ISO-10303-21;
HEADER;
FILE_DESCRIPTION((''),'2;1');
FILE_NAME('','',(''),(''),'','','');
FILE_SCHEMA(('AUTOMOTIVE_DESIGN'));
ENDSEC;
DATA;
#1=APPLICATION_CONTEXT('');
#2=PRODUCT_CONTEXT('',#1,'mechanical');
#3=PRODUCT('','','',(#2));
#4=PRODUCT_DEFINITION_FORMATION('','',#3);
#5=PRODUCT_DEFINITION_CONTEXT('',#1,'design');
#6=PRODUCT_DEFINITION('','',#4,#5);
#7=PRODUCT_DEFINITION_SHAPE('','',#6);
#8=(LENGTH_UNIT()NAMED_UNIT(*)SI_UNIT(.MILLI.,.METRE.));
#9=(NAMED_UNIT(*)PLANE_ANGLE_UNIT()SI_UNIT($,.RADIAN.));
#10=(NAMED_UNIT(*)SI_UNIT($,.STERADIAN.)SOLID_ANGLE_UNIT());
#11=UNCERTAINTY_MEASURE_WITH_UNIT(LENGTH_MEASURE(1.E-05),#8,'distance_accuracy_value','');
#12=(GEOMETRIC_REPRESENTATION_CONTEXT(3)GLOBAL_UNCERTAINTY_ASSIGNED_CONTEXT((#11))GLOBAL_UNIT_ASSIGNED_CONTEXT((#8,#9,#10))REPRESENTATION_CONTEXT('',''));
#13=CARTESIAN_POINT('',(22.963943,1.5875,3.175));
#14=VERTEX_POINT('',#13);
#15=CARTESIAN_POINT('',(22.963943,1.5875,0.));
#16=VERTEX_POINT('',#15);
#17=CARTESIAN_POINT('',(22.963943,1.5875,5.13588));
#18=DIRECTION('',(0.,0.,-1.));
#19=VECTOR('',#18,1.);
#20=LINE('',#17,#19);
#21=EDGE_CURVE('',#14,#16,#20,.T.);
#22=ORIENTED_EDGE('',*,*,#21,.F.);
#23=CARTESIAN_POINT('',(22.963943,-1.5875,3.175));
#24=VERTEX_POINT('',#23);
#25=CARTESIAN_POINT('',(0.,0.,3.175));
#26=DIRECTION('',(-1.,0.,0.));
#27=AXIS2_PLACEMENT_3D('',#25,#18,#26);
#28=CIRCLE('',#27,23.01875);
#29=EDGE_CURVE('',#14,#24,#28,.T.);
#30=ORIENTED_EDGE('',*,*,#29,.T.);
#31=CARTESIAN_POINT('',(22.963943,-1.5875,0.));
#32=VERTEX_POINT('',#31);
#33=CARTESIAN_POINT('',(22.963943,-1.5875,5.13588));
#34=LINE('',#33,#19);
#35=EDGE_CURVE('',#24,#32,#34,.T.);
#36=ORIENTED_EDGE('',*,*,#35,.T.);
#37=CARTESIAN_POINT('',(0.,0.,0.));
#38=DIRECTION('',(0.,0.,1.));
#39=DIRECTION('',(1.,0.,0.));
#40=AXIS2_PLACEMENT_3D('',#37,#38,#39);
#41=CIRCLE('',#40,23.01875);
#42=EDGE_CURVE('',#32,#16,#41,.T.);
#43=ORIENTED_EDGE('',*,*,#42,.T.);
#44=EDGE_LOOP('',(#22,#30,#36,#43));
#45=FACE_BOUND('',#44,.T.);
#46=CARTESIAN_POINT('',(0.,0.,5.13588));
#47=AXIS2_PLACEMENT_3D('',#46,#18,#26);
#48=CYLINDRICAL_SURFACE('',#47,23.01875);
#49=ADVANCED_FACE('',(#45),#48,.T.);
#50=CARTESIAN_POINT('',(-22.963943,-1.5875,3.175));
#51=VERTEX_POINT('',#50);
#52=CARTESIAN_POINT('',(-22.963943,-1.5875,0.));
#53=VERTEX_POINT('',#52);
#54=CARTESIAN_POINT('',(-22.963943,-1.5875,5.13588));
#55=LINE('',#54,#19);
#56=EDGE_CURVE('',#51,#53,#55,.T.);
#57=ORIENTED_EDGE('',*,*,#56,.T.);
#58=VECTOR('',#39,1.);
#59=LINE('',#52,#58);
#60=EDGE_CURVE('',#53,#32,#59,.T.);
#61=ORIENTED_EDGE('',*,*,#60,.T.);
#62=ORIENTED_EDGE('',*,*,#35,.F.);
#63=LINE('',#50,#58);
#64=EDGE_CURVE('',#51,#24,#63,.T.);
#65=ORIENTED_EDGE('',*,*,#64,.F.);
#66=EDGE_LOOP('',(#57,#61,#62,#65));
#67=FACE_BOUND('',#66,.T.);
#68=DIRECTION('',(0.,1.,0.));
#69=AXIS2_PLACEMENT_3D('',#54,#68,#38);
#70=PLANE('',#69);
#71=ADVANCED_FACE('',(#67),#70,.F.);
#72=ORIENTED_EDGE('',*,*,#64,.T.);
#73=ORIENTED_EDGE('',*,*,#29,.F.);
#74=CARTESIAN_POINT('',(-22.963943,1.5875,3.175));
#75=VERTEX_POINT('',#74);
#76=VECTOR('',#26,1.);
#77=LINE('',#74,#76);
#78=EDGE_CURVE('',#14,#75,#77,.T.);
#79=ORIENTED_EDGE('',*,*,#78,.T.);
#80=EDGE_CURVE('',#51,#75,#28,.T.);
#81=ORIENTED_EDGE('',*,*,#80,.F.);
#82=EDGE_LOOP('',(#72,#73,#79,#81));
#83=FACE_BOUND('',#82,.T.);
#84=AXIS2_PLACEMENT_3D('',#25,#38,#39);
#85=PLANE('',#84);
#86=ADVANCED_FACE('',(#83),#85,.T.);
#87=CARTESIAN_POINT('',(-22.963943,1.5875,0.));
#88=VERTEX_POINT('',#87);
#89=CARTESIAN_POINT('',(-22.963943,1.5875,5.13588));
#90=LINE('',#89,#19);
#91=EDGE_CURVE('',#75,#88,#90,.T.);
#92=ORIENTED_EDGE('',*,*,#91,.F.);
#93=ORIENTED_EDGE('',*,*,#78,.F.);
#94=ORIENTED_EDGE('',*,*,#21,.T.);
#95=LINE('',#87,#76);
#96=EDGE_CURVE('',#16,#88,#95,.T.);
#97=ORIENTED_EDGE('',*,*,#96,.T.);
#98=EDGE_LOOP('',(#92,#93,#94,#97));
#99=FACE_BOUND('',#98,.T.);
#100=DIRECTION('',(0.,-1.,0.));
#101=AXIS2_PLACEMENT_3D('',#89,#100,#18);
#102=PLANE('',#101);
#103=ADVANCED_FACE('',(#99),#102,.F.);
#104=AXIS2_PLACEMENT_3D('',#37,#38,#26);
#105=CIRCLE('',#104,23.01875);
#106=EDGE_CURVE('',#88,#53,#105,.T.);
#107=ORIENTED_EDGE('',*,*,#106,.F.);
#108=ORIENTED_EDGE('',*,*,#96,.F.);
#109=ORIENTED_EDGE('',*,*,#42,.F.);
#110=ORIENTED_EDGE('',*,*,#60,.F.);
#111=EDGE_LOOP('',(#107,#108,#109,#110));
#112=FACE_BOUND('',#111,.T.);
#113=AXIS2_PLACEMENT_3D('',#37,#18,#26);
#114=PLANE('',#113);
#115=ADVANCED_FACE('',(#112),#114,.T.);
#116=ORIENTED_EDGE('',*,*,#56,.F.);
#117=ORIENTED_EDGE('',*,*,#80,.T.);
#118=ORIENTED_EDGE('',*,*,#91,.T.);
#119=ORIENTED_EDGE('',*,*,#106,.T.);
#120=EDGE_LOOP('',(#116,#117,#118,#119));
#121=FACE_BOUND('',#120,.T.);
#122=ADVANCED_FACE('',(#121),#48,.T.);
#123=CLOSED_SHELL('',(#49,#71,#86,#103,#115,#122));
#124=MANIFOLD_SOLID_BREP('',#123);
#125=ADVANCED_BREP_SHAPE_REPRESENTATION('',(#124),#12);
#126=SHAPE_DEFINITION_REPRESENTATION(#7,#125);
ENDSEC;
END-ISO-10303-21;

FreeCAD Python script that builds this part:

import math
import FreeCAD as App
import Part
import Sketcher

V = App.Vector
Q = App.Units.Quantity

doc = App.newDocument("Part")
body = doc.addObject("PartDesign::Body", "Body")

# Sketch on XY plane
sketch1 = body.newObject("Sketcher::SketchObject", "Sketch")
sketch1.AttachmentSupport = (doc.getObject("XY_Plane"), [""])
sketch1.MapMode = "FlatFace"
sketch1.addGeometry([
    Part.LineSegment(V(-23, -1.6, 0), V(23, -1.6, 0)),
    Part.ArcOfCircle(Part.Circle(V(0, 0, 0), V(0, 0, 1), 23), math.radians(-3.95), math.radians(3.95)),
    Part.LineSegment(V(23, 1.6, 0), V(-23, 1.6, 0)),
    Part.ArcOfCircle(Part.Circle(V(0, 0, 0), V(0, 0, 1), 23), math.radians(176.05), math.radians(183.95)),
], False)
sketch1.addConstraint([
    Sketcher.Constraint("Coincident", 0, 2, 1, 1),
    Sketcher.Constraint("Coincident", 1, 2, 2, 1),
    Sketcher.Constraint("Coincident", 2, 2, 3, 1),
    Sketcher.Constraint("Coincident", 3, 2, 0, 1),
    Sketcher.Constraint("Horizontal", 0),
    Sketcher.Constraint("Horizontal", 2),
    Sketcher.Constraint("Coincident", 1, 3, -1, 1),
    Sketcher.Constraint("Coincident", 3, 3, -1, 1),
    Sketcher.Constraint("Equal", 1, 3),
    Sketcher.Constraint("Vertical", 0, 2, 1, 2),
    Sketcher.Constraint("Radius", 1, Q("0.90625 in")),
    Sketcher.Constraint("DistanceY", 0, 2, -1, 1, Q("0.0625 in")),
])
pad1 = body.newObject("PartDesign::Pad", "Pad")
pad1.Profile = sketch1
pad1.Length = Q("0.2022 in")

# Sketch on XY plane
sketch2 = body.newObject("Sketcher::SketchObject", "Sketch001")
sketch2.AttachmentSupport = (doc.getObject("XY_Plane"), [""])
sketch2.MapMode = "FlatFace"
sketch2.AttachmentOffset = App.Placement(V(0, 0, 0.2022 * 25.4), App.Rotation())
sketch2.addGeometry(Part.Circle(V(0, 0, 0), V(0, 0, 1), 20), False)
sketch2.addConstraint([
    Sketcher.Constraint("Coincident", 0, 3, -1, 1),
    Sketcher.Constraint("Diameter", 0, Q("1.5625 in")),
])
pocket1 = body.newObject("PartDesign::Pocket", "Pocket")
pocket1.Profile = sketch2
pocket1.Length = Q("0.0772 in")

# Sketch on XZ plane
sketch3 = body.newObject("Sketcher::SketchObject", "Sketch002")
sketch3.AttachmentSupport = (doc.getObject("XZ_Plane"), [""])
sketch3.MapMode = "FlatFace"
sketch3.AttachmentOffset = App.Placement(V(0, 0, -0.0625 * 25.4), App.Rotation())
sketch3.addGeometry([
    Part.LineSegment(V(-27, 3, 0), V(-27, 13, 0)),
    Part.LineSegment(V(-27, 13, 0), V(27, 13, 0)),
    Part.LineSegment(V(27, 13, 0), V(27, 3, 0)),
    Part.LineSegment(V(27, 3, 0), V(-27, 3, 0)),
], False)
sketch3.addConstraint([
    Sketcher.Constraint("Coincident", 0, 2, 1, 1),
    Sketcher.Constraint("Coincident", 1, 2, 2, 1),
    Sketcher.Constraint("Coincident", 2, 2, 3, 1),
    Sketcher.Constraint("Coincident", 3, 2, 0, 1),
    Sketcher.Constraint("Vertical", 0),
    Sketcher.Constraint("Horizontal", 1),
    Sketcher.Constraint("Vertical", 2),
    Sketcher.Constraint("Horizontal", 3),
    Sketcher.Constraint("DistanceY", -1, 1, 2, 2, Q("0.125 in")),
    Sketcher.Constraint("DistanceY", 0, 1, 0, 2, Q("10.064692 mm")),
    Sketcher.Constraint("DistanceX", 1, 1, 1, 2, Q("53.141573 mm")),
    Sketcher.Constraint("DistanceX", -1, 1, 1, 2, Q("26.50508 mm")),
])
pocket2 = body.newObject("PartDesign::Pocket", "Pocket001")
pocket2.Profile = sketch3
pocket2.Type = "ThroughAll"
pocket2.Reversed = True

doc.recompute()
